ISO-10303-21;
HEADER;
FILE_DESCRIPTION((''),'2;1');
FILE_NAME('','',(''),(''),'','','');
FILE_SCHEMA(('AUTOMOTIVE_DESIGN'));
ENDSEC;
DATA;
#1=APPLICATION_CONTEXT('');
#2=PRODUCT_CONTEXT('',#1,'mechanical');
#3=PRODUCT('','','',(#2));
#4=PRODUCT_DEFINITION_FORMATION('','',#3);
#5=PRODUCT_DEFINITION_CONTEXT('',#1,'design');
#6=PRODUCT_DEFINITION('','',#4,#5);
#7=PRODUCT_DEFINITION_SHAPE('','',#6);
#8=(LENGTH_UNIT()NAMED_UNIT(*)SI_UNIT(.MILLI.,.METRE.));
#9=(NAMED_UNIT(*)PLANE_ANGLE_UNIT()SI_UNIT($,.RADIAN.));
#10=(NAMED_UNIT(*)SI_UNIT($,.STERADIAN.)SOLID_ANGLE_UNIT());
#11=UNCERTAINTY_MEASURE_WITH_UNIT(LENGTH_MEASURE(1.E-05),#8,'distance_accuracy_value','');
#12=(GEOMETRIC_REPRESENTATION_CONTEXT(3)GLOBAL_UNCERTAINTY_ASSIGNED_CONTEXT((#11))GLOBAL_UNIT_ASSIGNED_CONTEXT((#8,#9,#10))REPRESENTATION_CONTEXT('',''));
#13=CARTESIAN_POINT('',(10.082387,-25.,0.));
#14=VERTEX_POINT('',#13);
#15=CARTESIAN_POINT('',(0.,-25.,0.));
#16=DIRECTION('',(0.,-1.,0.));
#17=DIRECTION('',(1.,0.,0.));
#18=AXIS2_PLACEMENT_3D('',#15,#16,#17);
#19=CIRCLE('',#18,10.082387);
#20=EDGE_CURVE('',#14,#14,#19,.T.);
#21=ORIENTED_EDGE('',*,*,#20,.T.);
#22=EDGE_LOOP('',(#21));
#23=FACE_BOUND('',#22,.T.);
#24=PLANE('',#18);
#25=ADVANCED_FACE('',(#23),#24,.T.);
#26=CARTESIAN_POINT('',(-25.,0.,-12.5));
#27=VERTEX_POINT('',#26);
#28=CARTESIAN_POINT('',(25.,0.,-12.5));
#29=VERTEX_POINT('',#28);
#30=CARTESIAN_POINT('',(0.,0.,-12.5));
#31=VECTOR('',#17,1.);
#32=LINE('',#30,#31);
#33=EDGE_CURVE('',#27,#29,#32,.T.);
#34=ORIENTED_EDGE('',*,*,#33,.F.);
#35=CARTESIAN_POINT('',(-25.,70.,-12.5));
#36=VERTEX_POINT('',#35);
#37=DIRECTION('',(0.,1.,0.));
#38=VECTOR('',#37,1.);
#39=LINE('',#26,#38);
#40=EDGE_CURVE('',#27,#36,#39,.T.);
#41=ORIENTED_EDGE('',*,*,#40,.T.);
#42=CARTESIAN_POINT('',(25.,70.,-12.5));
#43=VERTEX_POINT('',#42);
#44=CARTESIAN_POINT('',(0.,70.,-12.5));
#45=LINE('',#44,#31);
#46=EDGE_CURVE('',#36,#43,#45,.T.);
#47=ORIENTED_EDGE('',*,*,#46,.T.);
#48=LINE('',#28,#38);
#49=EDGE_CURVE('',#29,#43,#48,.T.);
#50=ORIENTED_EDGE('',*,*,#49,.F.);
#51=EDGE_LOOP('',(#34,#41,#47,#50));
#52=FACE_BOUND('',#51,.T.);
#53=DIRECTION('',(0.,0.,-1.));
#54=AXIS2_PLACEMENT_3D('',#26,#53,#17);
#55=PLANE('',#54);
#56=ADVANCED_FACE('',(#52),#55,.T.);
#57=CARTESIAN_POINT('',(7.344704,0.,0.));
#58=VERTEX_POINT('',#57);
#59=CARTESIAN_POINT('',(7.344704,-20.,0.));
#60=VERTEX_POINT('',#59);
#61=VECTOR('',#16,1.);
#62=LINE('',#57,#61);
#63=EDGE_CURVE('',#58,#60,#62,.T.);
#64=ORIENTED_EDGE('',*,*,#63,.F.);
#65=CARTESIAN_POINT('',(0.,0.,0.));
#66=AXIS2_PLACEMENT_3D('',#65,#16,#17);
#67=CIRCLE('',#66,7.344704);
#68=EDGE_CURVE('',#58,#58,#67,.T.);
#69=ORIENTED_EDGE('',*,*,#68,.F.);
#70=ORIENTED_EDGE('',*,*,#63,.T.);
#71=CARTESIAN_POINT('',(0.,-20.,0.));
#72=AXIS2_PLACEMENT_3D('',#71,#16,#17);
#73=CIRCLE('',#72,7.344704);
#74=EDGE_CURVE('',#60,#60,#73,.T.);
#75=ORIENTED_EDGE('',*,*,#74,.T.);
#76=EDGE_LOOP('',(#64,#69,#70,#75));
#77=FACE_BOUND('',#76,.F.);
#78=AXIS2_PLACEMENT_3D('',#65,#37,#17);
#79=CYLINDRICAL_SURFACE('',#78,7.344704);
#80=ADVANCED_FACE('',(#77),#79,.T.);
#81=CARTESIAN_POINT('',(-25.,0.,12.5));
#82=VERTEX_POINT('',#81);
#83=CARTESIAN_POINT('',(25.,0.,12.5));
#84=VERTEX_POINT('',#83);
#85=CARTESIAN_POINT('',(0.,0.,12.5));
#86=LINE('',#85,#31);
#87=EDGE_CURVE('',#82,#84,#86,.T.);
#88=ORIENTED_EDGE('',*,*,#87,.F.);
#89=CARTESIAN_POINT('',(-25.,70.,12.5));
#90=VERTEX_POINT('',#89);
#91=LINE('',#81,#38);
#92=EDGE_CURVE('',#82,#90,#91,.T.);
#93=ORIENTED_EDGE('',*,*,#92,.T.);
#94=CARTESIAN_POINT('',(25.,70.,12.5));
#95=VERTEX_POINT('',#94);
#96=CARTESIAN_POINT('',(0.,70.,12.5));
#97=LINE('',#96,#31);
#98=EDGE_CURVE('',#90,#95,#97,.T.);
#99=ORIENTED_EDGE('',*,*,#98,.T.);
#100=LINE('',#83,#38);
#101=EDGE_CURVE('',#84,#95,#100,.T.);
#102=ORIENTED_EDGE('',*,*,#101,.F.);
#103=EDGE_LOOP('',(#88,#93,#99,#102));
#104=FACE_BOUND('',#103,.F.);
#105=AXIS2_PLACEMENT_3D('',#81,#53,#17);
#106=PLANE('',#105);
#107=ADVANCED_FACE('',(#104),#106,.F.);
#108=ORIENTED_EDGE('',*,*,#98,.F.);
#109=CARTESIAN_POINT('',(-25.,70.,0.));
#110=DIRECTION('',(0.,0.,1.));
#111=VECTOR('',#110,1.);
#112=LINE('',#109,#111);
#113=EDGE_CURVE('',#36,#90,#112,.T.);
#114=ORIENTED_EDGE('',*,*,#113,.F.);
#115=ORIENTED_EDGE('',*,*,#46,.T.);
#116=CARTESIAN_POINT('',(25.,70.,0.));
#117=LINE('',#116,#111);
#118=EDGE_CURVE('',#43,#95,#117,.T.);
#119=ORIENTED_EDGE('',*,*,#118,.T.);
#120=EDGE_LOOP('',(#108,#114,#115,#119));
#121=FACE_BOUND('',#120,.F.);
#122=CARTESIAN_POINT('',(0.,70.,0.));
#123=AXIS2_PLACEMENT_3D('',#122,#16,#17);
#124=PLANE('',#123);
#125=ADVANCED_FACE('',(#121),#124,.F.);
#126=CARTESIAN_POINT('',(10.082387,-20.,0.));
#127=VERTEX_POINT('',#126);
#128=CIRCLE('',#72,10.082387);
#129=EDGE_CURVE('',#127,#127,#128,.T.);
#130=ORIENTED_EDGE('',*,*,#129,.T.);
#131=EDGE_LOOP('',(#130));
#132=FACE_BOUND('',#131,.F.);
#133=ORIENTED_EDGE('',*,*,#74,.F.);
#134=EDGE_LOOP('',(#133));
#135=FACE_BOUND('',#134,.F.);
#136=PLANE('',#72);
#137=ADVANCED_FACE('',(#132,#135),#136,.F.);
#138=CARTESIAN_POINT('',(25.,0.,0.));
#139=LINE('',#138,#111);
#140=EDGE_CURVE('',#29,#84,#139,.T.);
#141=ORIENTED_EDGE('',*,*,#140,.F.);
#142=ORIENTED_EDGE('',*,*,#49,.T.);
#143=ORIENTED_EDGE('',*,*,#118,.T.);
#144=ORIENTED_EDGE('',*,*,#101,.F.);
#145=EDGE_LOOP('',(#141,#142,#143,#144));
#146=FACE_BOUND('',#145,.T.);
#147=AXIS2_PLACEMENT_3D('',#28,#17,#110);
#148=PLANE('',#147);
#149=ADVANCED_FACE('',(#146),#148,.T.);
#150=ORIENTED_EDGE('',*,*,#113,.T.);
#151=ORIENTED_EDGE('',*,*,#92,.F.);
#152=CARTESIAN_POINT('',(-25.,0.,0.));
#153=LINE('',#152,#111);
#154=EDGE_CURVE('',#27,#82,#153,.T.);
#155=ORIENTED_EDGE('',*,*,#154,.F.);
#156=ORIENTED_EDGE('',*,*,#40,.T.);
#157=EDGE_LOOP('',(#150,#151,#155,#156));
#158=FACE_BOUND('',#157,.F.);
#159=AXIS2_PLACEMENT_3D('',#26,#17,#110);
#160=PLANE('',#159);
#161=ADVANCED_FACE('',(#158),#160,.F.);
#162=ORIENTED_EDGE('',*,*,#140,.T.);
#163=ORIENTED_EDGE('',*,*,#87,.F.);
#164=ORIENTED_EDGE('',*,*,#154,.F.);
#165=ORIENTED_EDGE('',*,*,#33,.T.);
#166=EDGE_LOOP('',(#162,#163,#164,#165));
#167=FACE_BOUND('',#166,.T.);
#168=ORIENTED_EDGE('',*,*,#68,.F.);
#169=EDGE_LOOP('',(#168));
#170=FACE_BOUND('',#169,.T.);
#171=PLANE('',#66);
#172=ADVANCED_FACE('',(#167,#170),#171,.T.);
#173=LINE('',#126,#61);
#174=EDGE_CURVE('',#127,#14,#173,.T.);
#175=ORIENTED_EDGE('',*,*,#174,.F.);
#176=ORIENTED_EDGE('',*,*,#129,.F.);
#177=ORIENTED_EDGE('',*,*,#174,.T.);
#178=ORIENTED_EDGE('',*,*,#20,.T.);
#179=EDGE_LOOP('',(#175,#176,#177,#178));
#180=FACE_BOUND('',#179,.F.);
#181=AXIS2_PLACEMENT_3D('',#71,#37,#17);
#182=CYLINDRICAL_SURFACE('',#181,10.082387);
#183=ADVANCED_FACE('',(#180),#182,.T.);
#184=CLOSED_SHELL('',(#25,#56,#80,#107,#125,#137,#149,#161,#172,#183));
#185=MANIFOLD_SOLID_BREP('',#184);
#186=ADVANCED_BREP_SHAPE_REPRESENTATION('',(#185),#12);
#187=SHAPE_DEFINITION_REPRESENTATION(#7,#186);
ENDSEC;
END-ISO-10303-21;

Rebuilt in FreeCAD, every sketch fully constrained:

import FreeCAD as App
import Part
import Sketcher

V = App.Vector
Q = App.Units.Quantity

doc = App.newDocument("Part")
body = doc.addObject("PartDesign::Body", "Body")

# Sketch on XZ plane
sketch1 = body.newObject("Sketcher::SketchObject", "Sketch")
sketch1.AttachmentSupport = (doc.getObject("XZ_Plane"), [""])
sketch1.MapMode = "FlatFace"
sketch1.addGeometry([
    Part.LineSegment(V(-25, 12, 0), V(-25, -12, 0)),
    Part.LineSegment(V(-25, -12, 0), V(25, -12, 0)),
    Part.LineSegment(V(25, -12, 0), V(25, 12, 0)),
    Part.LineSegment(V(25, 12, 0), V(-25, 12, 0)),
], False)
sketch1.addConstraint([
    Sketcher.Constraint("Coincident", 0, 2, 1, 1),
    Sketcher.Constraint("Coincident", 1, 2, 2, 1),
    Sketcher.Constraint("Coincident", 2, 2, 3, 1),
    Sketcher.Constraint("Coincident", 3, 2, 0, 1),
    Sketcher.Constraint("Vertical", 0),
    Sketcher.Constraint("Horizontal", 1),
    Sketcher.Constraint("Vertical", 2),
    Sketcher.Constraint("Horizontal", 3),
    Sketcher.Constraint("Symmetric", 0, 2, 2, 2, -1, 1),
    Sketcher.Constraint("DistanceX", 1, 1, 1, 2, Q("50 mm")),
    Sketcher.Constraint("DistanceY", 0, 2, 0, 1, Q("25 mm")),
])
pad1 = body.newObject("PartDesign::Pad", "Pad")
pad1.Profile = sketch1
pad1.Length = 70
pad1.Reversed = True

# Sketch on XZ plane
sketch2 = body.newObject("Sketcher::SketchObject", "Sketch001")
sketch2.AttachmentSupport = (doc.getObject("XZ_Plane"), [""])
sketch2.MapMode = "FlatFace"
sketch2.addGeometry(Part.Circle(V(0, 0, 0), V(0, 0, 1), 7), False)
sketch2.addConstraint([
    Sketcher.Constraint("Coincident", 0, 3, -1, 1),
    Sketcher.Constraint("Diameter", 0, Q("14.689408 mm")),
])
pad2 = body.newObject("PartDesign::Pad", "Pad001")
pad2.Profile = sketch2
pad2.Length = 20

# Sketch on XZ plane
sketch3 = body.newObject("Sketcher::SketchObject", "Sketch002")
sketch3.AttachmentSupport = (doc.getObject("XZ_Plane"), [""])
sketch3.MapMode = "FlatFace"
sketch3.AttachmentOffset = App.Placement(V(0, 0, 20), App.Rotation())
sketch3.addGeometry(Part.Circle(V(0, 0, 0), V(0, 0, 1), 10), False)
sketch3.addConstraint([
    Sketcher.Constraint("Coincident", 0, 3, -1, 1),
    Sketcher.Constraint("Diameter", 0, Q("20.164775 mm")),
])
pad3 = body.newObject("PartDesign::Pad", "Pad002")
pad3.Profile = sketch3
pad3.Length = 5

doc.recompute()
